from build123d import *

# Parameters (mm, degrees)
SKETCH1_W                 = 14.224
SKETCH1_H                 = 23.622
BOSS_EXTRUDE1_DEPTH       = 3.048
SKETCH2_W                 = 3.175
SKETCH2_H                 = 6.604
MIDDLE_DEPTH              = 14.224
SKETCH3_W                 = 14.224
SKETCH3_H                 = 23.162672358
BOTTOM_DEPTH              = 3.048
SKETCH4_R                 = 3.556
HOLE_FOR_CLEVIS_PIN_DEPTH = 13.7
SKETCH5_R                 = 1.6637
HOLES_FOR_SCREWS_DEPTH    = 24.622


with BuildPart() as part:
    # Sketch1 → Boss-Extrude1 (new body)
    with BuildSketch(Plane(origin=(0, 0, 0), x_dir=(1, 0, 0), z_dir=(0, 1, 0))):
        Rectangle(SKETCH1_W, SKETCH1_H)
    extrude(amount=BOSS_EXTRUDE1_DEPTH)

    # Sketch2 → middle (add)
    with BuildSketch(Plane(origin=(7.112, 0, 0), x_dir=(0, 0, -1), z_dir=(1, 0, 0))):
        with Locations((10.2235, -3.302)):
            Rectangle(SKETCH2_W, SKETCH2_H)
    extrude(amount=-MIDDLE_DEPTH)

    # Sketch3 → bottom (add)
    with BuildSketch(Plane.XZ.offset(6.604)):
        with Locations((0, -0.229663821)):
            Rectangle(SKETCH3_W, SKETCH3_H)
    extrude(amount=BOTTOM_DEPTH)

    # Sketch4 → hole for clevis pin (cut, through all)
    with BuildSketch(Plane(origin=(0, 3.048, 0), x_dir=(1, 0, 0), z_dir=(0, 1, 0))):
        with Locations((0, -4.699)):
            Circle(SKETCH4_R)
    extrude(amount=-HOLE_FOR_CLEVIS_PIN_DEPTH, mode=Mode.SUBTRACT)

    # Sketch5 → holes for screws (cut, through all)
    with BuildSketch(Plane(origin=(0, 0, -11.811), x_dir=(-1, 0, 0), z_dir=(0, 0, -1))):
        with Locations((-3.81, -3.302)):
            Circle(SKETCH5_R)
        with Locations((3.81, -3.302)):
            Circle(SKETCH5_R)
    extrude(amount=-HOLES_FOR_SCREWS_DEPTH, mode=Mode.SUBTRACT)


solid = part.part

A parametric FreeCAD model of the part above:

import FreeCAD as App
import Part
import Sketcher

V = App.Vector
Q = App.Units.Quantity

doc = App.newDocument("Part")
body = doc.addObject("PartDesign::Body", "Body")

# Sketch on XZ plane
sketch1 = doc.addObject("Sketcher::SketchObject", "Sketch")
body.addObject(sketch1)
sketch1.AttachmentSupport = (doc.XZ_Plane, [""])
sketch1.MapMode = "FlatFace"
sketch1.addGeometry([
    Part.LineSegment(V(-7, -12, 0), V(-7, 12, 0)),
    Part.LineSegment(V(-7, 12, 0), V(7, 12, 0)),
    Part.LineSegment(V(7, 12, 0), V(7, -12, 0)),
    Part.LineSegment(V(7, -12, 0), V(-7, -12, 0)),
], False)
sketch1.addConstraint([
    Sketcher.Constraint("Coincident", 0, 2, 1, 1),
    Sketcher.Constraint("Coincident", 1, 2, 2, 1),
    Sketcher.Constraint("Coincident", 2, 2, 3, 1),
    Sketcher.Constraint("Coincident", 3, 2, 0, 1),
    Sketcher.Constraint("Vertical", 0),
    Sketcher.Constraint("Horizontal", 1),
    Sketcher.Constraint("Vertical", 2),
    Sketcher.Constraint("Horizontal", 3),
    Sketcher.Constraint("Symmetric", 0, 2, 2, 2, -1, 1),
    Sketcher.Constraint("DistanceX", 1, 1, 1, 2, Q("0.56 in")),
    Sketcher.Constraint("DistanceY", 0, 1, 0, 2, Q("0.93 in")),
])
pad1 = doc.addObject("PartDesign::Pad", "Pad")
body.addObject(pad1)
pad1.Profile = sketch1
pad1.Length = Q("0.12 in")
pad1.Reversed = True

# Sketch on YZ plane
sketch2 = doc.addObject("Sketcher::SketchObject", "Sketch001")
body.addObject(sketch2)
sketch2.AttachmentSupport = (doc.YZ_Plane, [""])
sketch2.MapMode = "FlatFace"
sketch2.AttachmentOffset = App.Placement(V(0, 0, 0.28 * 25.4), App.Rotation())
sketch2.addGeometry([
    Part.LineSegment(V(0, -8.6, 0), V(-6.6, -8.6, 0)),
    Part.LineSegment(V(-6.6, -8.6, 0), V(-6.6, -11.8, 0)),
    Part.LineSegment(V(-6.6, -11.8, 0), V(0, -11.8, 0)),
    Part.LineSegment(V(0, -11.8, 0), V(0, -8.6, 0)),
], False)
sketch2.addConstraint([
    Sketcher.Constraint("Coincident", 0, 2, 1, 1),
    Sketcher.Constraint("Coincident", 1, 2, 2, 1),
    Sketcher.Constraint("Coincident", 2, 2, 3, 1),
    Sketcher.Constraint("Coincident", 3, 2, 0, 1),
    Sketcher.Constraint("Horizontal", 0),
    Sketcher.Constraint("Vertical", 1),
    Sketcher.Constraint("Horizontal", 2),
    Sketcher.Constraint("Vertical", 3),
    Sketcher.Constraint("PointOnObject", 2, 2, -2),
    Sketcher.Constraint("DistanceX", 0, 2, 0, 1, Q("0.26 in")),
    Sketcher.Constraint("DistanceY", 1, 2, 1, 1, Q("0.125 in")),
    Sketcher.Constraint("DistanceY", 0, 2, -1, 1, Q("0.34 in")),
])
pad2 = doc.addObject("PartDesign::Pad", "Pad001")
body.addObject(pad2)
pad2.Profile = sketch2
pad2.Length = Q("0.56 in")
pad2.Reversed = True

# Sketch on XZ plane
sketch3 = doc.addObject("Sketcher::SketchObject", "Sketch002")
body.addObject(sketch3)
sketch3.AttachmentSupport = (doc.XZ_Plane, [""])
sketch3.MapMode = "FlatFace"
sketch3.AttachmentOffset = App.Placement(V(0, 0, 0.26 * 25.4), App.Rotation())
sketch3.addGeometry([
    Part.LineSegment(V(-7, 11, 0), V(-7, -12, 0)),
    Part.LineSegment(V(-7, -12, 0), V(7, -12, 0)),
    Part.LineSegment(V(7, -12, 0), V(7, 11, 0)),
    Part.LineSegment(V(7, 11, 0), V(-7, 11, 0)),
], False)
sketch3.addConstraint([
    Sketcher.Constraint("Coincident", 0, 2, 1, 1),
    Sketcher.Constraint("Coincident", 1, 2, 2, 1),
    Sketcher.Constraint("Coincident", 2, 2, 3, 1),
    Sketcher.Constraint("Coincident", 3, 2, 0, 1),
    Sketcher.Constraint("Vertical", 0),
    Sketcher.Constraint("Horizontal", 1),
    Sketcher.Constraint("Vertical", 2),
    Sketcher.Constraint("Horizontal", 3),
    Sketcher.Constraint("DistanceX", 1, 1, 1, 2, Q("0.56 in")),
    Sketcher.Constraint("DistanceX", 0, 2, -1, 1, Q("0.28 in")),
    Sketcher.Constraint("DistanceY", 0, 2, -1, 1, Q("0.465 in")),
    Sketcher.Constraint("DistanceY", 0, 2, 0, 1, Q("23.162672 mm")),
])
pad3 = doc.addObject("PartDesign::Pad", "Pad002")
body.addObject(pad3)
pad3.Profile = sketch3
pad3.Length = Q("0.12 in")

# Sketch on XZ plane
sketch4 = doc.addObject("Sketcher::SketchObject", "Sketch003")
body.addObject(sketch4)
sketch4.AttachmentSupport = (doc.XZ_Plane, [""])
sketch4.MapMode = "FlatFace"
sketch4.AttachmentOffset = App.Placement(V(0, 0, -0.12 * 25.4), App.Rotation())
sketch4.addGeometry(Part.Circle(V(0, 4.7, 0), V(0, 0, 1), 3.6), False)
sketch4.addConstraint([
    Sketcher.Constraint("PointOnObject", 0, 3, -2),
    Sketcher.Constraint("Diameter", 0, Q("0.28 in")),
    Sketcher.Constraint("DistanceY", -1, 1, 0, 3, Q("0.185 in")),
])
pocket1 = doc.addObject("PartDesign::Pocket", "Pocket")
body.addObject(pocket1)
pocket1.Profile = sketch4
pocket1.Type = "ThroughAll"
pocket1.Reversed = True

# Sketch on XY plane
sketch5 = doc.addObject("Sketcher::SketchObject", "Sketch004")
body.addObject(sketch5)
sketch5.AttachmentSupport = (doc.XY_Plane, [""])
sketch5.MapMode = "FlatFace"
sketch5.AttachmentOffset = App.Placement(V(0, 0, -0.465 * 25.4), App.Rotation())
sketch5.addGeometry([
    Part.Circle(V(3.8, -3.3, 0), V(0, 0, 1), 1.7),
    Part.Circle(V(-3.8, -3.3, 0), V(0, 0, 1), 1.7),
], False)
sketch5.addConstraint([
    Sketcher.Constraint("Equal", 0, 1),
    Sketcher.Constraint("Symmetric", 0, 3, 1, 3, -2),
    Sketcher.Constraint("Diameter", 0, Q("0.131 in")),
    Sketcher.Constraint("DistanceX", 1, 3, 0, 3, Q("0.3 in")),
    Sketcher.Constraint("DistanceY", 0, 3, -1, 1, Q("0.13 in")),
])
pocket2 = doc.addObject("PartDesign::Pocket", "Pocket001")
body.addObject(pocket2)
pocket2.Profile = sketch5
pocket2.Type = "ThroughAll"
pocket2.Reversed = True

doc.recompute()
